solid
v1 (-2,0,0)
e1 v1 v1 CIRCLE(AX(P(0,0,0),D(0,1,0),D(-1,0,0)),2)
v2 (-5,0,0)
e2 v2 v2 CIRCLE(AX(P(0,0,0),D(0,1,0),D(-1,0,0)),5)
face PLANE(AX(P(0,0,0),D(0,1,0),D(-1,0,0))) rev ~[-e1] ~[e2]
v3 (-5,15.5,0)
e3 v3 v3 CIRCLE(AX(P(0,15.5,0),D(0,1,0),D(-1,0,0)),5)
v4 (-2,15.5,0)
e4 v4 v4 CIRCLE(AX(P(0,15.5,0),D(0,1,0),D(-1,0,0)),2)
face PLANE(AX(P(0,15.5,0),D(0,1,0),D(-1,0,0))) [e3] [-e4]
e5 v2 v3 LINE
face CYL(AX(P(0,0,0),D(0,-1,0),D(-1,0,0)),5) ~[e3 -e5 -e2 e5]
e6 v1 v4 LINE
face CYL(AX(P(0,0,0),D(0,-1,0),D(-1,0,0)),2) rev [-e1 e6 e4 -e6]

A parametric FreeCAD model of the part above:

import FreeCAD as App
import Part
import Sketcher
Q = App.Units.Quantity

doc = App.newDocument("Part")
params = doc.addObject("Spreadsheet::Sheet", "Params")
for row, (alias, value) in enumerate([
    ("sketch1_diameter", "10 mm"),
    ("sketch1_diameter2", "4 mm"),
    ("pad1_length", "15.5 mm"),
], start=1):
    params.set(f"A{row}", alias)
    params.set(f"B{row}", "=" + value)
    params.setAlias(f"B{row}", alias)

body = doc.addObject("PartDesign::Body", "Body")

# Sketch on XZ plane
sketch1 = doc.addObject("Sketcher::SketchObject", "Sketch")
body.addObject(sketch1)
sketch1.AttachmentSupport = (doc.XZ_Plane, [""])
sketch1.MapMode = "FlatFace"
sketch1.addGeometry([
    Part.Circle(App.Vector(0, 0, 0), App.Vector(0, 0, 1), 5),
    Part.Circle(App.Vector(0, 0, 0), App.Vector(0, 0, 1), 2),
], False)
sketch1.addConstraint([
    Sketcher.Constraint("Coincident", 0, 3, -1, 1),
    Sketcher.Constraint("Coincident", 1, 3, -1, 1),
    Sketcher.Constraint("Diameter", 0, Q("10 mm")),
    Sketcher.Constraint("Diameter", 1, Q("4 mm")),
])
sketch1.setExpression("Constraints[2]", "Params.sketch1_diameter")
sketch1.setExpression("Constraints[3]", "Params.sketch1_diameter2")
pad1 = doc.addObject("PartDesign::Pad", "Pad")
body.addObject(pad1)
pad1.Profile = sketch1
pad1.setExpression("Length", "Params.pad1_length")
pad1.Reversed = True

doc.recompute()
